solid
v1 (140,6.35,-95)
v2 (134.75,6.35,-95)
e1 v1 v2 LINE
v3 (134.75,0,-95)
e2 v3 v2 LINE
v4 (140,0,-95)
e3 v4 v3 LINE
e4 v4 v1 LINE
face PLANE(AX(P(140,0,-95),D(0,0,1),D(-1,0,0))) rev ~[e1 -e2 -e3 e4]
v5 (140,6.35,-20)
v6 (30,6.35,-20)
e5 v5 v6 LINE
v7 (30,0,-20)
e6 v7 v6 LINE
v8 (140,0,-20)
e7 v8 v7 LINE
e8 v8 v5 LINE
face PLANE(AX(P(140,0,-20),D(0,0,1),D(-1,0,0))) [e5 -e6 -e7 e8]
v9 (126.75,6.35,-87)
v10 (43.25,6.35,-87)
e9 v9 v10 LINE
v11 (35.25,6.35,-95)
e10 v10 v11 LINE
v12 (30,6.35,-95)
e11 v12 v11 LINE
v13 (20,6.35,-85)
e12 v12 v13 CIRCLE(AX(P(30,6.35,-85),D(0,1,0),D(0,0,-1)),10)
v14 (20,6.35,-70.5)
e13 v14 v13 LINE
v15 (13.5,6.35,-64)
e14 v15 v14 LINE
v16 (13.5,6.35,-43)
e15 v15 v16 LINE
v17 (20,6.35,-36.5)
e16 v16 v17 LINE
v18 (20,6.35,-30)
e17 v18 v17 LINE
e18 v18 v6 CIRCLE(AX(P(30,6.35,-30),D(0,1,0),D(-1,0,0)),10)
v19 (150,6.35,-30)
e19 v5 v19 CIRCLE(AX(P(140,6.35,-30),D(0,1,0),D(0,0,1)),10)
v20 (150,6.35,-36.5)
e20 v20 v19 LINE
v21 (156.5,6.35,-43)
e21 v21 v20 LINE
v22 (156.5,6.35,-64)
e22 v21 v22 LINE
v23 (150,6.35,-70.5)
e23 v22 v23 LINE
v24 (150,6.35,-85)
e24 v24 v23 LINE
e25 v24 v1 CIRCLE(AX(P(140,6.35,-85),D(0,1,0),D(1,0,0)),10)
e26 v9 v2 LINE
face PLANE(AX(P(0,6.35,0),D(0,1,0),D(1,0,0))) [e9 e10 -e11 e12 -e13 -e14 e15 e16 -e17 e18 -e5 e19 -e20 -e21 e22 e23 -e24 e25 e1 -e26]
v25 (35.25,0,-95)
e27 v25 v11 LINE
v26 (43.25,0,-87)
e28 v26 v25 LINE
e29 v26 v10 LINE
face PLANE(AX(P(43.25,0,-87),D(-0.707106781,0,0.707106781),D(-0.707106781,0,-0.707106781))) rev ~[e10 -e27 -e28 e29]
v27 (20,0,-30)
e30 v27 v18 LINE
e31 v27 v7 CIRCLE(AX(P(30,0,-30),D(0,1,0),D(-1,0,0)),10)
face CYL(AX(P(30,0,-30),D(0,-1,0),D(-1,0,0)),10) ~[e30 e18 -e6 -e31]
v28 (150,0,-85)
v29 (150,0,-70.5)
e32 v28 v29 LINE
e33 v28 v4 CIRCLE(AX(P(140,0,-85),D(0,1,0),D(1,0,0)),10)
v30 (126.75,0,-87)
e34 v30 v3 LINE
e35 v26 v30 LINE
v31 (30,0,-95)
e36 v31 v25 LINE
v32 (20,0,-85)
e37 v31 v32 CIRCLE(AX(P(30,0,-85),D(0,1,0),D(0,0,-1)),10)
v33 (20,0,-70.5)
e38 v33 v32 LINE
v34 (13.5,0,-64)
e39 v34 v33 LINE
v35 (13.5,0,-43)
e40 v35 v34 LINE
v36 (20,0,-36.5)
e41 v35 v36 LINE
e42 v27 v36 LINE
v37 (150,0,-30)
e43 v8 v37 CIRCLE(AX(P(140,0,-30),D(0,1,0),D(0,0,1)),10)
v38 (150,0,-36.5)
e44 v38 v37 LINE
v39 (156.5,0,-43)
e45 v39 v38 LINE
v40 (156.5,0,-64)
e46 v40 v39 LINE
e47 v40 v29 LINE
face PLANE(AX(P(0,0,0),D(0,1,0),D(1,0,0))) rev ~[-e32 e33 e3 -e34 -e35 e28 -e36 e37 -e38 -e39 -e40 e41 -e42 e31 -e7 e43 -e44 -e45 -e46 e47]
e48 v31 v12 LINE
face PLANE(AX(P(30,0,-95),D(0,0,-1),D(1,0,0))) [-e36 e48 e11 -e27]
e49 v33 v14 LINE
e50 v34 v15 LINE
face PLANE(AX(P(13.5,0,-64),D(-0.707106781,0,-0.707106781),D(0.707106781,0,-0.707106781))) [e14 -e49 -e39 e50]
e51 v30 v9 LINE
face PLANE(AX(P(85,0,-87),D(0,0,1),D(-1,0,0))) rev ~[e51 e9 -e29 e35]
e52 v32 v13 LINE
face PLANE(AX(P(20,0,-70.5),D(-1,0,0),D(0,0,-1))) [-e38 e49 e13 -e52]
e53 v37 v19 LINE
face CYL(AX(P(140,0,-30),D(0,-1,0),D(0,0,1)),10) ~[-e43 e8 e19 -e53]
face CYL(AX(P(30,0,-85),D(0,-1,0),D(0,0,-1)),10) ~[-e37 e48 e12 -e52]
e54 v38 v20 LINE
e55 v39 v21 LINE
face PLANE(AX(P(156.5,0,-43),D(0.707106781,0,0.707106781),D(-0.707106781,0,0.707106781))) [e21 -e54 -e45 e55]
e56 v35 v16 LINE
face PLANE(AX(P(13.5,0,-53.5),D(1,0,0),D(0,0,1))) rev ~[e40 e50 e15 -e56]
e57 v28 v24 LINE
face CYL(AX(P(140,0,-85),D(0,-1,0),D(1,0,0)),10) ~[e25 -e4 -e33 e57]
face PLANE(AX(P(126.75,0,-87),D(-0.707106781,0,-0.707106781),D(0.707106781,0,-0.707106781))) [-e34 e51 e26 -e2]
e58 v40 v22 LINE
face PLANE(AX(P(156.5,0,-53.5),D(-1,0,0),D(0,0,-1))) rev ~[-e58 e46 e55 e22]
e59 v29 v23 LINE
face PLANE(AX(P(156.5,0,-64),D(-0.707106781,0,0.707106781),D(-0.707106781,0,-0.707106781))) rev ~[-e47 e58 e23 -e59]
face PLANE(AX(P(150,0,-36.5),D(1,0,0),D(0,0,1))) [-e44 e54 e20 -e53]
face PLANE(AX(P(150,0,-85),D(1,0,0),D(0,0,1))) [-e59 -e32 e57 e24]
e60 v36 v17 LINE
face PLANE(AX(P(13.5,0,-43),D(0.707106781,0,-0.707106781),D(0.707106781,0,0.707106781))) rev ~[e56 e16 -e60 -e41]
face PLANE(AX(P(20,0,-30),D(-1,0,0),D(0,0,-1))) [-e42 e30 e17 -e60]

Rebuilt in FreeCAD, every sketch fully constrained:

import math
import FreeCAD as App
import Part
import Sketcher

V = App.Vector
Q = App.Units.Quantity

doc = App.newDocument("Part")
body = doc.addObject("PartDesign::Body", "Body")

# Sketch on XZ plane
sketch1 = doc.addObject("Sketcher::SketchObject", "Sketch")
body.addObject(sketch1)
sketch1.AttachmentSupport = (doc.XZ_Plane, [""])
sketch1.MapMode = "FlatFace"
sketch1.addGeometry([
    Part.LineSegment(V(30, -20, 0), V(140, -20, 0)),  # 0
    Part.ArcOfCircle(Part.Circle(V(140, -30, 0), V(0, 0, 1), 10), math.radians(0), math.radians(90)),  # 1
    Part.LineSegment(V(150, -30, 0), V(150, -36, 0)),  # 2
    Part.LineSegment(V(150, -36, 0), V(156, -43, 0)),  # 3
    Part.LineSegment(V(156, -43, 0), V(156, -64, 0)),  # 4
    Part.LineSegment(V(156, -64, 0), V(150, -70, 0)),  # 5
    Part.LineSegment(V(150, -70, 0), V(150, -85, 0)),  # 6
    Part.ArcOfCircle(Part.Circle(V(140, -85, 0), V(0, 0, 1), 10), math.radians(-90), math.radians(0)),  # 7
    Part.LineSegment(V(140, -95, 0), V(135, -95, 0)),  # 8
    Part.LineSegment(V(135, -95, 0), V(127, -87, 0)),  # 9
    Part.LineSegment(V(127, -87, 0), V(43, -87, 0)),  # 10
    Part.LineSegment(V(43, -87, 0), V(35, -95, 0)),  # 11
    Part.LineSegment(V(35, -95, 0), V(30, -95, 0)),  # 12
    Part.ArcOfCircle(Part.Circle(V(30, -85, 0), V(0, 0, 1), 10), math.radians(180), math.radians(270)),  # 13
    Part.LineSegment(V(20, -85, 0), V(20, -70, 0)),  # 14
    Part.LineSegment(V(20, -70, 0), V(14, -64, 0)),  # 15
    Part.LineSegment(V(14, -64, 0), V(14, -43, 0)),  # 16
    Part.LineSegment(V(14, -43, 0), V(20, -36, 0)),  # 17
    Part.LineSegment(V(20, -36, 0), V(20, -30, 0)),  # 18
    Part.ArcOfCircle(Part.Circle(V(30, -30, 0), V(0, 0, 1), 10), math.radians(90), math.radians(180)),  # 19
], False)
sketch1.addConstraint([
    Sketcher.Constraint("Tangent", 0, 2, 1, 2),
    Sketcher.Constraint("Tangent", 1, 1, 2, 1),
    Sketcher.Constraint("Coincident", 2, 2, 3, 1),
    Sketcher.Constraint("Coincident", 3, 2, 4, 1),
    Sketcher.Constraint("Coincident", 4, 2, 5, 1),
    Sketcher.Constraint("Coincident", 5, 2, 6, 1),
    Sketcher.Constraint("Tangent", 6, 2, 7, 2),
    Sketcher.Constraint("Tangent", 7, 1, 8, 1),
    Sketcher.Constraint("Coincident", 8, 2, 9, 1),
    Sketcher.Constraint("Coincident", 9, 2, 10, 1),
    Sketcher.Constraint("Coincident", 10, 2, 11, 1),
    Sketcher.Constraint("Coincident", 11, 2, 12, 1),
    Sketcher.Constraint("Tangent", 12, 2, 13, 2),
    Sketcher.Constraint("Tangent", 13, 1, 14, 1),
    Sketcher.Constraint("Coincident", 14, 2, 15, 1),
    Sketcher.Constraint("Coincident", 15, 2, 16, 1),
    Sketcher.Constraint("Coincident", 16, 2, 17, 1),
    Sketcher.Constraint("Coincident", 17, 2, 18, 1),
    Sketcher.Constraint("Tangent", 18, 2, 19, 2),
    Sketcher.Constraint("Tangent", 19, 1, 0, 1),
    Sketcher.Constraint("Horizontal", 0),
    Sketcher.Constraint("Vertical", 2),
    Sketcher.Constraint("Vertical", 4),
    Sketcher.Constraint("Vertical", 6),
    Sketcher.Constraint("Horizontal", 8),
    Sketcher.Constraint("Horizontal", 10),
    Sketcher.Constraint("Horizontal", 12),
    Sketcher.Constraint("Vertical", 14),
    Sketcher.Constraint("Vertical", 16),
    Sketcher.Constraint("Vertical", 18),
    Sketcher.Constraint("Equal", 1, 7),
    Sketcher.Constraint("Equal", 7, 13),
    Sketcher.Constraint("Equal", 13, 19),
    Sketcher.Constraint("Perpendicular", 3, 5),
    Sketcher.Constraint("Perpendicular", 5, 9),
    Sketcher.Constraint("Perpendicular", 9, 11),
    Sketcher.Constraint("Perpendicular", 11, 15),
    Sketcher.Constraint("Perpendicular", 15, 17),
    Sketcher.Constraint("Horizontal", 7, 3, 13, 3),
    Sketcher.Constraint("Horizontal", 5, 2, 14, 2),
    Sketcher.Constraint("Horizontal", 4, 2, 15, 2),
    Sketcher.Constraint("Horizontal", 3, 2, 16, 2),
    Sketcher.Constraint("Horizontal", 2, 2, 17, 2),
    Sketcher.Constraint("Vertical", 1, 3, 7, 3),
    Sketcher.Constraint("Vertical", 13, 3, 19, 3),
    Sketcher.Constraint("Equal", 8, 12),
    Sketcher.Constraint("Radius", 1, Q("10 mm")),
    Sketcher.Constraint("DistanceY", 2, 2, 2, 1, Q("6.5 mm")),
    Sketcher.Constraint("DistanceY", 0, 2, -1, 1, Q("20 mm")),
    Sketcher.Constraint("DistanceY", 3, 2, -1, 1, Q("43 mm")),
    Sketcher.Constraint("DistanceX", -1, 1, 13, 1, Q("20 mm")),
    Sketcher.Constraint("DistanceX", 9, 2, 8, 2, Q("8 mm")),
    Sketcher.Constraint("DistanceX", 8, 2, 8, 1, Q("5.25 mm")),
    Sketcher.Constraint("DistanceX", 0, 1, 0, 2, Q("110 mm")),
    Sketcher.Constraint("DistanceY", 4, 2, 4, 1, Q("21 mm")),
    Sketcher.Constraint("DistanceY", 6, 2, 6, 1, Q("14.5 mm")),
])
pad1 = doc.addObject("PartDesign::Pad", "Pad")
body.addObject(pad1)
pad1.Profile = sketch1
pad1.Length = 6.35
pad1.Reversed = True

doc.recompute()
